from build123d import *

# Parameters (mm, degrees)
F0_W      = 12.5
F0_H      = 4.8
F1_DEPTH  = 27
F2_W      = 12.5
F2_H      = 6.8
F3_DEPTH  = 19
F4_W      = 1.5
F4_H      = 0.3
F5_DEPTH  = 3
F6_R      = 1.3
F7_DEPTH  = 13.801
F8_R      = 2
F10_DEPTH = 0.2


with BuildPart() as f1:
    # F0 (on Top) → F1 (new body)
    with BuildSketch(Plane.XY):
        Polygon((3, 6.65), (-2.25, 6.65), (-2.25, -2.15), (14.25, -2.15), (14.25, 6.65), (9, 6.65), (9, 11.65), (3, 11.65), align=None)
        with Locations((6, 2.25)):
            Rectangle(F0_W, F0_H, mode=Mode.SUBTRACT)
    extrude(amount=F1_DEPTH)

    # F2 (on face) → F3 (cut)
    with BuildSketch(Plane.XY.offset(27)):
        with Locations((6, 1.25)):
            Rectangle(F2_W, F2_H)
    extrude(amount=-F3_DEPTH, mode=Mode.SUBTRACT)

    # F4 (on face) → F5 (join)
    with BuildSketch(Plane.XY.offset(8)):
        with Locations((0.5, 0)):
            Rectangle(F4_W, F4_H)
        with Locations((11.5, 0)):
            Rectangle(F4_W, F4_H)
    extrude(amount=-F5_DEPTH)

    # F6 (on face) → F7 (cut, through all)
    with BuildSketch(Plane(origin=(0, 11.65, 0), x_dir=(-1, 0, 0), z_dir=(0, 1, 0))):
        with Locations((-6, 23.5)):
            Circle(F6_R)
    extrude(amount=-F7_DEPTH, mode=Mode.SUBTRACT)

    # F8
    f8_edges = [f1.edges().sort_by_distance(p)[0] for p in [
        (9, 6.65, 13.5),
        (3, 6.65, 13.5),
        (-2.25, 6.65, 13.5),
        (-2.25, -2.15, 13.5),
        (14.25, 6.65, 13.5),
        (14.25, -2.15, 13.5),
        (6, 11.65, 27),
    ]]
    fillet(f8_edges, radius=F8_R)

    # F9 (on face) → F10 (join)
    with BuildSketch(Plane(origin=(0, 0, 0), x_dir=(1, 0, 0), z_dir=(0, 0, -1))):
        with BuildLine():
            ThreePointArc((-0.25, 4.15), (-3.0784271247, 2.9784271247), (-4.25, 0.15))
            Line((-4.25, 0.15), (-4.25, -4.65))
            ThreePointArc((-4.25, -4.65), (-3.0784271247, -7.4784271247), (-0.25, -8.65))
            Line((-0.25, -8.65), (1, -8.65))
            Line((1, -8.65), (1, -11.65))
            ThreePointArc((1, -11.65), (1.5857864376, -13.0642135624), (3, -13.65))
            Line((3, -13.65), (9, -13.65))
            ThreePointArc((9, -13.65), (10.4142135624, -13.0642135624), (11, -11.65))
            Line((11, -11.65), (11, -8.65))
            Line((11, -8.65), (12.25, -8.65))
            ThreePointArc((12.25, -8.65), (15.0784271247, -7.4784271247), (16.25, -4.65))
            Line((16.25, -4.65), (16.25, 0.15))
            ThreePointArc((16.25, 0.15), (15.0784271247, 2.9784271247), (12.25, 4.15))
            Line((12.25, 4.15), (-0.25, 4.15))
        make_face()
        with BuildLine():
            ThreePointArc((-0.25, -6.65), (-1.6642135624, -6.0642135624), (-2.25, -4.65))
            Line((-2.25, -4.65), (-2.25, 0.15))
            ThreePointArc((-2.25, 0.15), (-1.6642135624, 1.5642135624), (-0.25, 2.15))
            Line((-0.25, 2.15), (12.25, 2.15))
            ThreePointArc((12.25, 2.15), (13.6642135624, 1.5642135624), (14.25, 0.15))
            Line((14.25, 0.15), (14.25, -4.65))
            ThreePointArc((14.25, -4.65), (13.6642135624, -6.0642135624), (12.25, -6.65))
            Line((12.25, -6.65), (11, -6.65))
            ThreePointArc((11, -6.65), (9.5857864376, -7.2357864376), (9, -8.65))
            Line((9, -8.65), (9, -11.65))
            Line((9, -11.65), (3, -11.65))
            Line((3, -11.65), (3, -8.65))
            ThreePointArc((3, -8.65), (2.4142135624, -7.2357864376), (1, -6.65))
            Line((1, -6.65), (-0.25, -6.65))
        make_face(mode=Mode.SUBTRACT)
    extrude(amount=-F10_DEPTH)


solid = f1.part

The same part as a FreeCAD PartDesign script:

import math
import FreeCAD as App
import Part
import Sketcher
from FreeCAD import Vector


def edges_at(feature, points):
    """Names of the edges that pass closest to the given points."""
    edges = feature.Shape.Edges
    near = lambda p: min(range(len(edges)), key=lambda i: edges[i].distToShape(Part.Vertex(*p))[0])
    return sorted({f"Edge{near(p) + 1}" for p in points})

doc = App.newDocument("Part")
params = doc.addObject("Spreadsheet::Sheet", "Params")
for row, (alias, value) in enumerate([
    ("sketch1_width", "6 mm"),
    ("sketch1_height", "5 mm"),
    ("sketch1_width2", "16.5 mm"),
    ("sketch1_width3", "12.5 mm"),
    ("sketch1_height2", "8.8 mm"),
    ("pad1_length", "27 mm"),
    ("sketch2_width", "12.5 mm"),
    ("sketch2_height", "6.8 mm"),
    ("pocket1_length", "19 mm"),
    ("sketch3_width", "1.5 mm"),
    ("sketch3_height", "0.3 mm"),
    ("pad2_length", "3 mm"),
    ("sketch4_diameter", "2.6 mm"),
    ("fillet_radius", "2 mm"),
    ("sketch5_radius", "4 mm"),
    ("sketch5_width", "6 mm"),
    ("sketch5_height", "3 mm"),
    ("sketch5_width2", "12.5 mm"),
    ("sketch5_height2", "4.8 mm"),
    ("pad3_length", "0.2 mm"),
], start=1):
    params.set(f"A{row}", alias)
    params.set(f"B{row}", "=" + value)
    params.setAlias(f"B{row}", alias)

body = doc.addObject("PartDesign::Body", "Body")

sketch1 = doc.addObject("Sketcher::SketchObject", "Sketch")
body.addObject(sketch1)
sketch1.AttachmentSupport = (doc.XY_Plane, [""])
sketch1.MapMode = "FlatFace"
sketch1.addGeometry([
    Part.LineSegment(Vector(3, 6.65, 0), Vector(-2.25, 6.65, 0)),
    Part.LineSegment(Vector(-2.25, 6.65, 0), Vector(-2.25, -2.15, 0)),
    Part.LineSegment(Vector(-2.25, -2.15, 0), Vector(14.25, -2.15, 0)),
    Part.LineSegment(Vector(14.25, -2.15, 0), Vector(14.25, 6.65, 0)),
    Part.LineSegment(Vector(14.25, 6.65, 0), Vector(9, 6.65, 0)),
    Part.LineSegment(Vector(9, 6.65, 0), Vector(9, 11.65, 0)),
    Part.LineSegment(Vector(9, 11.65, 0), Vector(3, 11.65, 0)),
    Part.LineSegment(Vector(3, 11.65, 0), Vector(3, 6.65, 0)),
    Part.LineSegment(Vector(12.25, -0.15, 0), Vector(-0.25, -0.15, 0)),
    Part.LineSegment(Vector(-0.25, -0.15, 0), Vector(-0.25, 4.65, 0)),
    Part.LineSegment(Vector(-0.25, 4.65, 0), Vector(12.25, 4.65, 0)),
    Part.LineSegment(Vector(12.25, 4.65, 0), Vector(12.25, -0.15, 0)),
], False)
sketch1.addConstraint([
    Sketcher.Constraint("Coincident", 0, 2, 1, 1),
    Sketcher.Constraint("Coincident", 1, 2, 2, 1),
    Sketcher.Constraint("Coincident", 2, 2, 3, 1),
    Sketcher.Constraint("Coincident", 3, 2, 4, 1),
    Sketcher.Constraint("Coincident", 4, 2, 5, 1),
    Sketcher.Constraint("Coincident", 5, 2, 6, 1),
    Sketcher.Constraint("Coincident", 6, 2, 7, 1),
    Sketcher.Constraint("Coincident", 7, 2, 0, 1),
    Sketcher.Constraint("Coincident", 8, 2, 9, 1),
    Sketcher.Constraint("Coincident", 9, 2, 10, 1),
    Sketcher.Constraint("Coincident", 10, 2, 11, 1),
    Sketcher.Constraint("Coincident", 11, 2, 8, 1),
    Sketcher.Constraint("Horizontal", 0),
    Sketcher.Constraint("Vertical", 1),
    Sketcher.Constraint("Horizontal", 2),
    Sketcher.Constraint("Vertical", 3),
    Sketcher.Constraint("Horizontal", 4),
    Sketcher.Constraint("Vertical", 5),
    Sketcher.Constraint("Horizontal", 6),
    Sketcher.Constraint("Vertical", 7),
    Sketcher.Constraint("Horizontal", 8),
    Sketcher.Constraint("Vertical", 9),
    Sketcher.Constraint("Horizontal", 10),
    Sketcher.Constraint("Vertical", 11),
    Sketcher.Constraint("Horizontal", 0, 2, 3, 2),
    Sketcher.Constraint("Equal", 0, 4),
    Sketcher.Constraint("DistanceX", 6, 2, 6, 1, 6.0),
    Sketcher.Constraint("DistanceY", 5, 1, 5, 2, 5.0),
    Sketcher.Constraint("DistanceX", 2, 1, 2, 2, 16.5),
    Sketcher.Constraint("DistanceX", 8, 2, 8, 1, 12.5),
    Sketcher.Constraint("DistanceY", 1, 2, 1, 1, 8.8),
    Sketcher.Constraint("DistanceY", 9, 1, 9, 2, 4.8),
    Sketcher.Constraint("DistanceX", -1, 1, 4, 2, 9.0),
    Sketcher.Constraint("DistanceX", 1, 2, 8, 2, 2.0),
    Sketcher.Constraint("DistanceY", 1, 2, 8, 2, 2.0),
    Sketcher.Constraint("DistanceY", -1, 1, 0, 2, 6.65),
])
sketch1.setExpression("Constraints[26]", "Params.sketch1_width")
sketch1.setExpression("Constraints[27]", "Params.sketch1_height")
sketch1.setExpression("Constraints[28]", "Params.sketch1_width2")
sketch1.setExpression("Constraints[29]", "Params.sketch1_width3")
sketch1.setExpression("Constraints[30]", "Params.sketch1_height2")
pad1 = doc.addObject("PartDesign::Pad", "Pad")
body.addObject(pad1)
pad1.Profile = sketch1
pad1.setExpression("Length", "Params.pad1_length")

sketch2 = doc.addObject("Sketcher::SketchObject", "Sketch001")
body.addObject(sketch2)
sketch2.AttachmentSupport = (doc.XY_Plane, [""])
sketch2.MapMode = "FlatFace"
sketch2.AttachmentOffset = App.Placement(Vector(0, 0, 27), App.Rotation())
sketch2.addGeometry([
    Part.LineSegment(Vector(-0.25, 4.65, 0), Vector(-0.25, -2.15, 0)),
    Part.LineSegment(Vector(-0.25, -2.15, 0), Vector(12.25, -2.15, 0)),
    Part.LineSegment(Vector(12.25, -2.15, 0), Vector(12.25, 4.65, 0)),
    Part.LineSegment(Vector(12.25, 4.65, 0), Vector(-0.25, 4.65, 0)),
], False)
sketch2.addConstraint([
    Sketcher.Constraint("Coincident", 0, 2, 1, 1),
    Sketcher.Constraint("Coincident", 1, 2, 2, 1),
    Sketcher.Constraint("Coincident", 2, 2, 3, 1),
    Sketcher.Constraint("Coincident", 3, 2, 0, 1),
    Sketcher.Constraint("Vertical", 0),
    Sketcher.Constraint("Horizontal", 1),
    Sketcher.Constraint("Vertical", 2),
    Sketcher.Constraint("Horizontal", 3),
    Sketcher.Constraint("DistanceX", 1, 1, 1, 2, 12.5),
    Sketcher.Constraint("DistanceY", 0, 2, 0, 1, 6.8),
    Sketcher.Constraint("DistanceX", 0, 2, -1, 1, 0.25),
    Sketcher.Constraint("DistanceY", 0, 2, -1, 1, 2.15),
])
sketch2.setExpression("Constraints[8]", "Params.sketch2_width")
sketch2.setExpression("Constraints[9]", "Params.sketch2_height")
pocket1 = doc.addObject("PartDesign::Pocket", "Pocket")
body.addObject(pocket1)
pocket1.Profile = sketch2
pocket1.setExpression("Length", "Params.pocket1_length")

sketch3 = doc.addObject("Sketcher::SketchObject", "Sketch002")
body.addObject(sketch3)
sketch3.AttachmentSupport = (doc.XY_Plane, [""])
sketch3.MapMode = "FlatFace"
sketch3.AttachmentOffset = App.Placement(Vector(0, 0, 8), App.Rotation())
sketch3.addGeometry([
    Part.LineSegment(Vector(-0.25, 0.15, 0), Vector(-0.25, -0.15, 0)),
    Part.LineSegment(Vector(-0.25, -0.15, 0), Vector(1.25, -0.15, 0)),
    Part.LineSegment(Vector(1.25, -0.15, 0), Vector(1.25, 0.15, 0)),
    Part.LineSegment(Vector(1.25, 0.15, 0), Vector(-0.25, 0.15, 0)),
    Part.LineSegment(Vector(10.75, 0.15, 0), Vector(10.75, -0.15, 0)),
    Part.LineSegment(Vector(10.75, -0.15, 0), Vector(12.25, -0.15, 0)),
    Part.LineSegment(Vector(12.25, -0.15, 0), Vector(12.25, 0.15, 0)),
    Part.LineSegment(Vector(12.25, 0.15, 0), Vector(10.75, 0.15, 0)),
], False)
sketch3.addConstraint([
    Sketcher.Constraint("Coincident", 0, 2, 1, 1),
    Sketcher.Constraint("Coincident", 1, 2, 2, 1),
    Sketcher.Constraint("Coincident", 2, 2, 3, 1),
    Sketcher.Constraint("Coincident", 3, 2, 0, 1),
    Sketcher.Constraint("Coincident", 4, 2, 5, 1),
    Sketcher.Constraint("Coincident", 5, 2, 6, 1),
    Sketcher.Constraint("Coincident", 6, 2, 7, 1),
    Sketcher.Constraint("Coincident", 7, 2, 4, 1),
    Sketcher.Constraint("Vertical", 0),
    Sketcher.Constraint("Horizontal", 1),
    Sketcher.Constraint("Vertical", 2),
    Sketcher.Constraint("Horizontal", 3),
    Sketcher.Constraint("Vertical", 4),
    Sketcher.Constraint("Horizontal", 5),
    Sketcher.Constraint("Vertical", 6),
    Sketcher.Constraint("Horizontal", 7),
    Sketcher.Constraint("Horizontal", 1, 2, 4, 2),
    Sketcher.Constraint("Horizontal", 3, 2, 6, 2),
    Sketcher.Constraint("Equal", 3, 5),
    Sketcher.Constraint("DistanceX", 1, 1, 1, 2, 1.5),
    Sketcher.Constraint("DistanceY", 0, 2, 0, 1, 0.3),
    Sketcher.Constraint("DistanceX", 0, 2, 4, 2, 11.0),
    Sketcher.Constraint("DistanceX", 0, 2, -1, 1, 0.25),
    Sketcher.Constraint("DistanceY", 0, 2, -1, 1, 0.15),
])
sketch3.setExpression("Constraints[19]", "Params.sketch3_width")
sketch3.setExpression("Constraints[20]", "Params.sketch3_height")
pad2 = doc.addObject("PartDesign::Pad", "Pad001")
body.addObject(pad2)
pad2.Profile = sketch3
pad2.setExpression("Length", "Params.pad2_length")
pad2.Reversed = True

sketch4 = doc.addObject("Sketcher::SketchObject", "Sketch003")
body.addObject(sketch4)
sketch4.AttachmentSupport = (doc.XZ_Plane, [""])
sketch4.MapMode = "FlatFace"
sketch4.AttachmentOffset = App.Placement(Vector(0, 0, -11.65), App.Rotation())
sketch4.addGeometry(Part.Circle(Vector(6, 23.5, 0), Vector(0, 0, 1), 1.3), False)
sketch4.addConstraint([
    Sketcher.Constraint("Diameter", 0, 2.6),
    Sketcher.Constraint("DistanceX", -1, 1, 0, 3, 6.0),
    Sketcher.Constraint("DistanceY", -1, 1, 0, 3, 23.5),
])
sketch4.setExpression("Constraints[0]", "Params.sketch4_diameter")
pocket2 = doc.addObject("PartDesign::Pocket", "Pocket001")
body.addObject(pocket2)
pocket2.Profile = sketch4
pocket2.Type = "ThroughAll"
pocket2.Reversed = True
doc.recompute()

fillet = doc.addObject("PartDesign::Fillet", "Fillet")
body.addObject(fillet)
fillet.Base = (pocket2, edges_at(pocket2, [
    (9, 6.65, 13.5),
    (3, 6.65, 13.5),
    (-2.25, 6.65, 13.5),
    (-2.25, -2.15, 13.5),
    (14.25, 6.65, 13.5),
    (14.25, -2.15, 13.5),
    (6, 11.65, 27),
]))
fillet.setExpression("Radius", "Params.fillet_radius")

sketch5 = doc.addObject("Sketcher::SketchObject", "Sketch004")
body.addObject(sketch5)
sketch5.AttachmentSupport = (doc.XY_Plane, [""])
sketch5.MapMode = "FlatFace"
sketch5.addGeometry([
    Part.ArcOfCircle(Part.Circle(Vector(-0.25, -0.15, 0), Vector(0, 0, 1), 4), math.radians(180), math.radians(270)),
    Part.LineSegment(Vector(-4.25, -0.15, 0), Vector(-4.25, 4.65, 0)),
    Part.ArcOfCircle(Part.Circle(Vector(-0.25, 4.65, 0), Vector(0, 0, 1), 4), math.radians(90), math.radians(180)),
    Part.LineSegment(Vector(-0.25, 8.65, 0), Vector(1, 8.65, 0)),
    Part.LineSegment(Vector(1, 8.65, 0), Vector(1, 11.65, 0)),
    Part.ArcOfCircle(Part.Circle(Vector(3, 11.65, 0), Vector(0, 0, 1), 2), math.radians(90), math.radians(180)),
    Part.LineSegment(Vector(3, 13.65, 0), Vector(9, 13.65, 0)),
    Part.ArcOfCircle(Part.Circle(Vector(9, 11.65, 0), Vector(0, 0, 1), 2), math.radians(0), math.radians(90)),
    Part.LineSegment(Vector(11, 11.65, 0), Vector(11, 8.65, 0)),
    Part.LineSegment(Vector(11, 8.65, 0), Vector(12.25, 8.65, 0)),
    Part.ArcOfCircle(Part.Circle(Vector(12.25, 4.65, 0), Vector(0, 0, 1), 4), math.radians(0), math.radians(90)),
    Part.LineSegment(Vector(16.25, 4.65, 0), Vector(16.25, -0.15, 0)),
    Part.ArcOfCircle(Part.Circle(Vector(12.25, -0.15, 0), Vector(0, 0, 1), 4), math.radians(-90), math.radians(0)),
    Part.LineSegment(Vector(12.25, -4.15, 0), Vector(-0.25, -4.15, 0)),
    Part.LineSegment(Vector(1, 6.65, 0), Vector(-0.25, 6.65, 0)),
    Part.ArcOfCircle(Part.Circle(Vector(-0.25, 4.65, 0), Vector(0, 0, 1), 2), math.radians(90), math.radians(180)),
    Part.LineSegment(Vector(-2.25, 4.65, 0), Vector(-2.25, -0.15, 0)),
    Part.ArcOfCircle(Part.Circle(Vector(-0.25, -0.15, 0), Vector(0, 0, 1), 2), math.radians(180), math.radians(270)),
    Part.LineSegment(Vector(-0.25, -2.15, 0), Vector(12.25, -2.15, 0)),
    Part.ArcOfCircle(Part.Circle(Vector(12.25, -0.15, 0), Vector(0, 0, 1), 2), math.radians(-90), math.radians(0)),
    Part.LineSegment(Vector(14.25, -0.15, 0), Vector(14.25, 4.65, 0)),
    Part.ArcOfCircle(Part.Circle(Vector(12.25, 4.65, 0), Vector(0, 0, 1), 2), math.radians(0), math.radians(90)),
    Part.LineSegment(Vector(12.25, 6.65, 0), Vector(11, 6.65, 0)),
    Part.ArcOfCircle(Part.Circle(Vector(11, 8.65, 0), Vector(0, 0, 1), 2), math.radians(180), math.radians(270)),
    Part.LineSegment(Vector(9, 8.65, 0), Vector(9, 11.65, 0)),
    Part.LineSegment(Vector(9, 11.65, 0), Vector(3, 11.65, 0)),
    Part.LineSegment(Vector(3, 11.65, 0), Vector(3, 8.65, 0)),
    Part.ArcOfCircle(Part.Circle(Vector(1, 8.65, 0), Vector(0, 0, 1), 2), math.radians(-90), math.radians(0)),
], False)
sketch5.addConstraint([
    Sketcher.Constraint("Tangent", 0, 1, 1, 1),
    Sketcher.Constraint("Tangent", 1, 2, 2, 2),
    Sketcher.Constraint("Tangent", 2, 1, 3, 1),
    Sketcher.Constraint("Coincident", 3, 2, 4, 1),
    Sketcher.Constraint("Tangent", 4, 2, 5, 2),
    Sketcher.Constraint("Tangent", 5, 1, 6, 1),
    Sketcher.Constraint("Tangent", 6, 2, 7, 2),
    Sketcher.Constraint("Tangent", 7, 1, 8, 1),
    Sketcher.Constraint("Coincident", 8, 2, 9, 1),
    Sketcher.Constraint("Tangent", 9, 2, 10, 2),
    Sketcher.Constraint("Tangent", 10, 1, 11, 1),
    Sketcher.Constraint("Tangent", 11, 2, 12, 2),
    Sketcher.Constraint("Tangent", 12, 1, 13, 1),
    Sketcher.Constraint("Tangent", 13, 2, 0, 2),
    Sketcher.Constraint("Tangent", 14, 2, 15, 1),
    Sketcher.Constraint("Tangent", 15, 2, 16, 1),
    Sketcher.Constraint("Tangent", 16, 2, 17, 1),
    Sketcher.Constraint("Tangent", 17, 2, 18, 1),
    Sketcher.Constraint("Tangent", 18, 2, 19, 1),
    Sketcher.Constraint("Tangent", 19, 2, 20, 1),
    Sketcher.Constraint("Tangent", 20, 2, 21, 1),
    Sketcher.Constraint("Tangent", 21, 2, 22, 1),
    Sketcher.Constraint("Tangent", 22, 2, 23, 2),
    Sketcher.Constraint("Tangent", 23, 1, 24, 1),
    Sketcher.Constraint("Coincident", 24, 2, 25, 1),
    Sketcher.Constraint("Coincident", 25, 2, 26, 1),
    Sketcher.Constraint("Tangent", 26, 2, 27, 2),
    Sketcher.Constraint("Tangent", 27, 1, 14, 1),
    Sketcher.Constraint("Vertical", 1),
    Sketcher.Constraint("Horizontal", 3),
    Sketcher.Constraint("Vertical", 4),
    Sketcher.Constraint("Horizontal", 6),
    Sketcher.Constraint("Vertical", 8),
    Sketcher.Constraint("Horizontal", 9),
    Sketcher.Constraint("Vertical", 11),
    Sketcher.Constraint("Horizontal", 13),
    Sketcher.Constraint("Horizontal", 14),
    Sketcher.Constraint("Vertical", 16),
    Sketcher.Constraint("Horizontal", 18),
    Sketcher.Constraint("Vertical", 20),
    Sketcher.Constraint("Horizontal", 22),
    Sketcher.Constraint("Vertical", 24),
    Sketcher.Constraint("Horizontal", 25),
    Sketcher.Constraint("Vertical", 26),
    Sketcher.Constraint("Coincident", 15, 3, 2, 3),
    Sketcher.Constraint("Coincident", 17, 3, 0, 3),
    Sketcher.Constraint("Coincident", 19, 3, 12, 3),
    Sketcher.Constraint("Coincident", 21, 3, 10, 3),
    Sketcher.Constraint("Coincident", 3, 2, 27, 3),
    Sketcher.Constraint("Coincident", 8, 2, 23, 3),
    Sketcher.Constraint("Coincident", 24, 2, 7, 3),
    Sketcher.Constraint("Equal", 0, 2),
    Sketcher.Constraint("Equal", 5, 7),
    Sketcher.Constraint("Equal", 2, 10),
    Sketcher.Constraint("Equal", 10, 12),
    Sketcher.Constraint("Equal", 7, 15),
    Sketcher.Constraint("Horizontal", 2, 3, 10, 3),
    Sketcher.Constraint("Equal", 3, 9),
    Sketcher.Constraint("Radius", 0, 4.0),
    Sketcher.Constraint("DistanceX", 6, 1, 6, 2, 6.0),
    Sketcher.Constraint("DistanceY", 4, 1, 4, 2, 3.0),
    Sketcher.Constraint("DistanceX", 13, 2, 13, 1, 12.5),
    Sketcher.Constraint("DistanceY", 1, 1, 1, 2, 4.8),
    Sketcher.Constraint("DistanceX", -1, 1, 5, 3, 3.0),
    Sketcher.Constraint("DistanceY", 0, 3, -1, 1, 0.15),
])
sketch5.setExpression("Constraints[58]", "Params.sketch5_radius")
sketch5.setExpression("Constraints[59]", "Params.sketch5_width")
sketch5.setExpression("Constraints[60]", "Params.sketch5_height")
sketch5.setExpression("Constraints[61]", "Params.sketch5_width2")
sketch5.setExpression("Constraints[62]", "Params.sketch5_height2")
pad3 = doc.addObject("PartDesign::Pad", "Pad002")
body.addObject(pad3)
pad3.Profile = sketch5
pad3.setExpression("Length", "Params.pad3_length")

doc.recompute()
